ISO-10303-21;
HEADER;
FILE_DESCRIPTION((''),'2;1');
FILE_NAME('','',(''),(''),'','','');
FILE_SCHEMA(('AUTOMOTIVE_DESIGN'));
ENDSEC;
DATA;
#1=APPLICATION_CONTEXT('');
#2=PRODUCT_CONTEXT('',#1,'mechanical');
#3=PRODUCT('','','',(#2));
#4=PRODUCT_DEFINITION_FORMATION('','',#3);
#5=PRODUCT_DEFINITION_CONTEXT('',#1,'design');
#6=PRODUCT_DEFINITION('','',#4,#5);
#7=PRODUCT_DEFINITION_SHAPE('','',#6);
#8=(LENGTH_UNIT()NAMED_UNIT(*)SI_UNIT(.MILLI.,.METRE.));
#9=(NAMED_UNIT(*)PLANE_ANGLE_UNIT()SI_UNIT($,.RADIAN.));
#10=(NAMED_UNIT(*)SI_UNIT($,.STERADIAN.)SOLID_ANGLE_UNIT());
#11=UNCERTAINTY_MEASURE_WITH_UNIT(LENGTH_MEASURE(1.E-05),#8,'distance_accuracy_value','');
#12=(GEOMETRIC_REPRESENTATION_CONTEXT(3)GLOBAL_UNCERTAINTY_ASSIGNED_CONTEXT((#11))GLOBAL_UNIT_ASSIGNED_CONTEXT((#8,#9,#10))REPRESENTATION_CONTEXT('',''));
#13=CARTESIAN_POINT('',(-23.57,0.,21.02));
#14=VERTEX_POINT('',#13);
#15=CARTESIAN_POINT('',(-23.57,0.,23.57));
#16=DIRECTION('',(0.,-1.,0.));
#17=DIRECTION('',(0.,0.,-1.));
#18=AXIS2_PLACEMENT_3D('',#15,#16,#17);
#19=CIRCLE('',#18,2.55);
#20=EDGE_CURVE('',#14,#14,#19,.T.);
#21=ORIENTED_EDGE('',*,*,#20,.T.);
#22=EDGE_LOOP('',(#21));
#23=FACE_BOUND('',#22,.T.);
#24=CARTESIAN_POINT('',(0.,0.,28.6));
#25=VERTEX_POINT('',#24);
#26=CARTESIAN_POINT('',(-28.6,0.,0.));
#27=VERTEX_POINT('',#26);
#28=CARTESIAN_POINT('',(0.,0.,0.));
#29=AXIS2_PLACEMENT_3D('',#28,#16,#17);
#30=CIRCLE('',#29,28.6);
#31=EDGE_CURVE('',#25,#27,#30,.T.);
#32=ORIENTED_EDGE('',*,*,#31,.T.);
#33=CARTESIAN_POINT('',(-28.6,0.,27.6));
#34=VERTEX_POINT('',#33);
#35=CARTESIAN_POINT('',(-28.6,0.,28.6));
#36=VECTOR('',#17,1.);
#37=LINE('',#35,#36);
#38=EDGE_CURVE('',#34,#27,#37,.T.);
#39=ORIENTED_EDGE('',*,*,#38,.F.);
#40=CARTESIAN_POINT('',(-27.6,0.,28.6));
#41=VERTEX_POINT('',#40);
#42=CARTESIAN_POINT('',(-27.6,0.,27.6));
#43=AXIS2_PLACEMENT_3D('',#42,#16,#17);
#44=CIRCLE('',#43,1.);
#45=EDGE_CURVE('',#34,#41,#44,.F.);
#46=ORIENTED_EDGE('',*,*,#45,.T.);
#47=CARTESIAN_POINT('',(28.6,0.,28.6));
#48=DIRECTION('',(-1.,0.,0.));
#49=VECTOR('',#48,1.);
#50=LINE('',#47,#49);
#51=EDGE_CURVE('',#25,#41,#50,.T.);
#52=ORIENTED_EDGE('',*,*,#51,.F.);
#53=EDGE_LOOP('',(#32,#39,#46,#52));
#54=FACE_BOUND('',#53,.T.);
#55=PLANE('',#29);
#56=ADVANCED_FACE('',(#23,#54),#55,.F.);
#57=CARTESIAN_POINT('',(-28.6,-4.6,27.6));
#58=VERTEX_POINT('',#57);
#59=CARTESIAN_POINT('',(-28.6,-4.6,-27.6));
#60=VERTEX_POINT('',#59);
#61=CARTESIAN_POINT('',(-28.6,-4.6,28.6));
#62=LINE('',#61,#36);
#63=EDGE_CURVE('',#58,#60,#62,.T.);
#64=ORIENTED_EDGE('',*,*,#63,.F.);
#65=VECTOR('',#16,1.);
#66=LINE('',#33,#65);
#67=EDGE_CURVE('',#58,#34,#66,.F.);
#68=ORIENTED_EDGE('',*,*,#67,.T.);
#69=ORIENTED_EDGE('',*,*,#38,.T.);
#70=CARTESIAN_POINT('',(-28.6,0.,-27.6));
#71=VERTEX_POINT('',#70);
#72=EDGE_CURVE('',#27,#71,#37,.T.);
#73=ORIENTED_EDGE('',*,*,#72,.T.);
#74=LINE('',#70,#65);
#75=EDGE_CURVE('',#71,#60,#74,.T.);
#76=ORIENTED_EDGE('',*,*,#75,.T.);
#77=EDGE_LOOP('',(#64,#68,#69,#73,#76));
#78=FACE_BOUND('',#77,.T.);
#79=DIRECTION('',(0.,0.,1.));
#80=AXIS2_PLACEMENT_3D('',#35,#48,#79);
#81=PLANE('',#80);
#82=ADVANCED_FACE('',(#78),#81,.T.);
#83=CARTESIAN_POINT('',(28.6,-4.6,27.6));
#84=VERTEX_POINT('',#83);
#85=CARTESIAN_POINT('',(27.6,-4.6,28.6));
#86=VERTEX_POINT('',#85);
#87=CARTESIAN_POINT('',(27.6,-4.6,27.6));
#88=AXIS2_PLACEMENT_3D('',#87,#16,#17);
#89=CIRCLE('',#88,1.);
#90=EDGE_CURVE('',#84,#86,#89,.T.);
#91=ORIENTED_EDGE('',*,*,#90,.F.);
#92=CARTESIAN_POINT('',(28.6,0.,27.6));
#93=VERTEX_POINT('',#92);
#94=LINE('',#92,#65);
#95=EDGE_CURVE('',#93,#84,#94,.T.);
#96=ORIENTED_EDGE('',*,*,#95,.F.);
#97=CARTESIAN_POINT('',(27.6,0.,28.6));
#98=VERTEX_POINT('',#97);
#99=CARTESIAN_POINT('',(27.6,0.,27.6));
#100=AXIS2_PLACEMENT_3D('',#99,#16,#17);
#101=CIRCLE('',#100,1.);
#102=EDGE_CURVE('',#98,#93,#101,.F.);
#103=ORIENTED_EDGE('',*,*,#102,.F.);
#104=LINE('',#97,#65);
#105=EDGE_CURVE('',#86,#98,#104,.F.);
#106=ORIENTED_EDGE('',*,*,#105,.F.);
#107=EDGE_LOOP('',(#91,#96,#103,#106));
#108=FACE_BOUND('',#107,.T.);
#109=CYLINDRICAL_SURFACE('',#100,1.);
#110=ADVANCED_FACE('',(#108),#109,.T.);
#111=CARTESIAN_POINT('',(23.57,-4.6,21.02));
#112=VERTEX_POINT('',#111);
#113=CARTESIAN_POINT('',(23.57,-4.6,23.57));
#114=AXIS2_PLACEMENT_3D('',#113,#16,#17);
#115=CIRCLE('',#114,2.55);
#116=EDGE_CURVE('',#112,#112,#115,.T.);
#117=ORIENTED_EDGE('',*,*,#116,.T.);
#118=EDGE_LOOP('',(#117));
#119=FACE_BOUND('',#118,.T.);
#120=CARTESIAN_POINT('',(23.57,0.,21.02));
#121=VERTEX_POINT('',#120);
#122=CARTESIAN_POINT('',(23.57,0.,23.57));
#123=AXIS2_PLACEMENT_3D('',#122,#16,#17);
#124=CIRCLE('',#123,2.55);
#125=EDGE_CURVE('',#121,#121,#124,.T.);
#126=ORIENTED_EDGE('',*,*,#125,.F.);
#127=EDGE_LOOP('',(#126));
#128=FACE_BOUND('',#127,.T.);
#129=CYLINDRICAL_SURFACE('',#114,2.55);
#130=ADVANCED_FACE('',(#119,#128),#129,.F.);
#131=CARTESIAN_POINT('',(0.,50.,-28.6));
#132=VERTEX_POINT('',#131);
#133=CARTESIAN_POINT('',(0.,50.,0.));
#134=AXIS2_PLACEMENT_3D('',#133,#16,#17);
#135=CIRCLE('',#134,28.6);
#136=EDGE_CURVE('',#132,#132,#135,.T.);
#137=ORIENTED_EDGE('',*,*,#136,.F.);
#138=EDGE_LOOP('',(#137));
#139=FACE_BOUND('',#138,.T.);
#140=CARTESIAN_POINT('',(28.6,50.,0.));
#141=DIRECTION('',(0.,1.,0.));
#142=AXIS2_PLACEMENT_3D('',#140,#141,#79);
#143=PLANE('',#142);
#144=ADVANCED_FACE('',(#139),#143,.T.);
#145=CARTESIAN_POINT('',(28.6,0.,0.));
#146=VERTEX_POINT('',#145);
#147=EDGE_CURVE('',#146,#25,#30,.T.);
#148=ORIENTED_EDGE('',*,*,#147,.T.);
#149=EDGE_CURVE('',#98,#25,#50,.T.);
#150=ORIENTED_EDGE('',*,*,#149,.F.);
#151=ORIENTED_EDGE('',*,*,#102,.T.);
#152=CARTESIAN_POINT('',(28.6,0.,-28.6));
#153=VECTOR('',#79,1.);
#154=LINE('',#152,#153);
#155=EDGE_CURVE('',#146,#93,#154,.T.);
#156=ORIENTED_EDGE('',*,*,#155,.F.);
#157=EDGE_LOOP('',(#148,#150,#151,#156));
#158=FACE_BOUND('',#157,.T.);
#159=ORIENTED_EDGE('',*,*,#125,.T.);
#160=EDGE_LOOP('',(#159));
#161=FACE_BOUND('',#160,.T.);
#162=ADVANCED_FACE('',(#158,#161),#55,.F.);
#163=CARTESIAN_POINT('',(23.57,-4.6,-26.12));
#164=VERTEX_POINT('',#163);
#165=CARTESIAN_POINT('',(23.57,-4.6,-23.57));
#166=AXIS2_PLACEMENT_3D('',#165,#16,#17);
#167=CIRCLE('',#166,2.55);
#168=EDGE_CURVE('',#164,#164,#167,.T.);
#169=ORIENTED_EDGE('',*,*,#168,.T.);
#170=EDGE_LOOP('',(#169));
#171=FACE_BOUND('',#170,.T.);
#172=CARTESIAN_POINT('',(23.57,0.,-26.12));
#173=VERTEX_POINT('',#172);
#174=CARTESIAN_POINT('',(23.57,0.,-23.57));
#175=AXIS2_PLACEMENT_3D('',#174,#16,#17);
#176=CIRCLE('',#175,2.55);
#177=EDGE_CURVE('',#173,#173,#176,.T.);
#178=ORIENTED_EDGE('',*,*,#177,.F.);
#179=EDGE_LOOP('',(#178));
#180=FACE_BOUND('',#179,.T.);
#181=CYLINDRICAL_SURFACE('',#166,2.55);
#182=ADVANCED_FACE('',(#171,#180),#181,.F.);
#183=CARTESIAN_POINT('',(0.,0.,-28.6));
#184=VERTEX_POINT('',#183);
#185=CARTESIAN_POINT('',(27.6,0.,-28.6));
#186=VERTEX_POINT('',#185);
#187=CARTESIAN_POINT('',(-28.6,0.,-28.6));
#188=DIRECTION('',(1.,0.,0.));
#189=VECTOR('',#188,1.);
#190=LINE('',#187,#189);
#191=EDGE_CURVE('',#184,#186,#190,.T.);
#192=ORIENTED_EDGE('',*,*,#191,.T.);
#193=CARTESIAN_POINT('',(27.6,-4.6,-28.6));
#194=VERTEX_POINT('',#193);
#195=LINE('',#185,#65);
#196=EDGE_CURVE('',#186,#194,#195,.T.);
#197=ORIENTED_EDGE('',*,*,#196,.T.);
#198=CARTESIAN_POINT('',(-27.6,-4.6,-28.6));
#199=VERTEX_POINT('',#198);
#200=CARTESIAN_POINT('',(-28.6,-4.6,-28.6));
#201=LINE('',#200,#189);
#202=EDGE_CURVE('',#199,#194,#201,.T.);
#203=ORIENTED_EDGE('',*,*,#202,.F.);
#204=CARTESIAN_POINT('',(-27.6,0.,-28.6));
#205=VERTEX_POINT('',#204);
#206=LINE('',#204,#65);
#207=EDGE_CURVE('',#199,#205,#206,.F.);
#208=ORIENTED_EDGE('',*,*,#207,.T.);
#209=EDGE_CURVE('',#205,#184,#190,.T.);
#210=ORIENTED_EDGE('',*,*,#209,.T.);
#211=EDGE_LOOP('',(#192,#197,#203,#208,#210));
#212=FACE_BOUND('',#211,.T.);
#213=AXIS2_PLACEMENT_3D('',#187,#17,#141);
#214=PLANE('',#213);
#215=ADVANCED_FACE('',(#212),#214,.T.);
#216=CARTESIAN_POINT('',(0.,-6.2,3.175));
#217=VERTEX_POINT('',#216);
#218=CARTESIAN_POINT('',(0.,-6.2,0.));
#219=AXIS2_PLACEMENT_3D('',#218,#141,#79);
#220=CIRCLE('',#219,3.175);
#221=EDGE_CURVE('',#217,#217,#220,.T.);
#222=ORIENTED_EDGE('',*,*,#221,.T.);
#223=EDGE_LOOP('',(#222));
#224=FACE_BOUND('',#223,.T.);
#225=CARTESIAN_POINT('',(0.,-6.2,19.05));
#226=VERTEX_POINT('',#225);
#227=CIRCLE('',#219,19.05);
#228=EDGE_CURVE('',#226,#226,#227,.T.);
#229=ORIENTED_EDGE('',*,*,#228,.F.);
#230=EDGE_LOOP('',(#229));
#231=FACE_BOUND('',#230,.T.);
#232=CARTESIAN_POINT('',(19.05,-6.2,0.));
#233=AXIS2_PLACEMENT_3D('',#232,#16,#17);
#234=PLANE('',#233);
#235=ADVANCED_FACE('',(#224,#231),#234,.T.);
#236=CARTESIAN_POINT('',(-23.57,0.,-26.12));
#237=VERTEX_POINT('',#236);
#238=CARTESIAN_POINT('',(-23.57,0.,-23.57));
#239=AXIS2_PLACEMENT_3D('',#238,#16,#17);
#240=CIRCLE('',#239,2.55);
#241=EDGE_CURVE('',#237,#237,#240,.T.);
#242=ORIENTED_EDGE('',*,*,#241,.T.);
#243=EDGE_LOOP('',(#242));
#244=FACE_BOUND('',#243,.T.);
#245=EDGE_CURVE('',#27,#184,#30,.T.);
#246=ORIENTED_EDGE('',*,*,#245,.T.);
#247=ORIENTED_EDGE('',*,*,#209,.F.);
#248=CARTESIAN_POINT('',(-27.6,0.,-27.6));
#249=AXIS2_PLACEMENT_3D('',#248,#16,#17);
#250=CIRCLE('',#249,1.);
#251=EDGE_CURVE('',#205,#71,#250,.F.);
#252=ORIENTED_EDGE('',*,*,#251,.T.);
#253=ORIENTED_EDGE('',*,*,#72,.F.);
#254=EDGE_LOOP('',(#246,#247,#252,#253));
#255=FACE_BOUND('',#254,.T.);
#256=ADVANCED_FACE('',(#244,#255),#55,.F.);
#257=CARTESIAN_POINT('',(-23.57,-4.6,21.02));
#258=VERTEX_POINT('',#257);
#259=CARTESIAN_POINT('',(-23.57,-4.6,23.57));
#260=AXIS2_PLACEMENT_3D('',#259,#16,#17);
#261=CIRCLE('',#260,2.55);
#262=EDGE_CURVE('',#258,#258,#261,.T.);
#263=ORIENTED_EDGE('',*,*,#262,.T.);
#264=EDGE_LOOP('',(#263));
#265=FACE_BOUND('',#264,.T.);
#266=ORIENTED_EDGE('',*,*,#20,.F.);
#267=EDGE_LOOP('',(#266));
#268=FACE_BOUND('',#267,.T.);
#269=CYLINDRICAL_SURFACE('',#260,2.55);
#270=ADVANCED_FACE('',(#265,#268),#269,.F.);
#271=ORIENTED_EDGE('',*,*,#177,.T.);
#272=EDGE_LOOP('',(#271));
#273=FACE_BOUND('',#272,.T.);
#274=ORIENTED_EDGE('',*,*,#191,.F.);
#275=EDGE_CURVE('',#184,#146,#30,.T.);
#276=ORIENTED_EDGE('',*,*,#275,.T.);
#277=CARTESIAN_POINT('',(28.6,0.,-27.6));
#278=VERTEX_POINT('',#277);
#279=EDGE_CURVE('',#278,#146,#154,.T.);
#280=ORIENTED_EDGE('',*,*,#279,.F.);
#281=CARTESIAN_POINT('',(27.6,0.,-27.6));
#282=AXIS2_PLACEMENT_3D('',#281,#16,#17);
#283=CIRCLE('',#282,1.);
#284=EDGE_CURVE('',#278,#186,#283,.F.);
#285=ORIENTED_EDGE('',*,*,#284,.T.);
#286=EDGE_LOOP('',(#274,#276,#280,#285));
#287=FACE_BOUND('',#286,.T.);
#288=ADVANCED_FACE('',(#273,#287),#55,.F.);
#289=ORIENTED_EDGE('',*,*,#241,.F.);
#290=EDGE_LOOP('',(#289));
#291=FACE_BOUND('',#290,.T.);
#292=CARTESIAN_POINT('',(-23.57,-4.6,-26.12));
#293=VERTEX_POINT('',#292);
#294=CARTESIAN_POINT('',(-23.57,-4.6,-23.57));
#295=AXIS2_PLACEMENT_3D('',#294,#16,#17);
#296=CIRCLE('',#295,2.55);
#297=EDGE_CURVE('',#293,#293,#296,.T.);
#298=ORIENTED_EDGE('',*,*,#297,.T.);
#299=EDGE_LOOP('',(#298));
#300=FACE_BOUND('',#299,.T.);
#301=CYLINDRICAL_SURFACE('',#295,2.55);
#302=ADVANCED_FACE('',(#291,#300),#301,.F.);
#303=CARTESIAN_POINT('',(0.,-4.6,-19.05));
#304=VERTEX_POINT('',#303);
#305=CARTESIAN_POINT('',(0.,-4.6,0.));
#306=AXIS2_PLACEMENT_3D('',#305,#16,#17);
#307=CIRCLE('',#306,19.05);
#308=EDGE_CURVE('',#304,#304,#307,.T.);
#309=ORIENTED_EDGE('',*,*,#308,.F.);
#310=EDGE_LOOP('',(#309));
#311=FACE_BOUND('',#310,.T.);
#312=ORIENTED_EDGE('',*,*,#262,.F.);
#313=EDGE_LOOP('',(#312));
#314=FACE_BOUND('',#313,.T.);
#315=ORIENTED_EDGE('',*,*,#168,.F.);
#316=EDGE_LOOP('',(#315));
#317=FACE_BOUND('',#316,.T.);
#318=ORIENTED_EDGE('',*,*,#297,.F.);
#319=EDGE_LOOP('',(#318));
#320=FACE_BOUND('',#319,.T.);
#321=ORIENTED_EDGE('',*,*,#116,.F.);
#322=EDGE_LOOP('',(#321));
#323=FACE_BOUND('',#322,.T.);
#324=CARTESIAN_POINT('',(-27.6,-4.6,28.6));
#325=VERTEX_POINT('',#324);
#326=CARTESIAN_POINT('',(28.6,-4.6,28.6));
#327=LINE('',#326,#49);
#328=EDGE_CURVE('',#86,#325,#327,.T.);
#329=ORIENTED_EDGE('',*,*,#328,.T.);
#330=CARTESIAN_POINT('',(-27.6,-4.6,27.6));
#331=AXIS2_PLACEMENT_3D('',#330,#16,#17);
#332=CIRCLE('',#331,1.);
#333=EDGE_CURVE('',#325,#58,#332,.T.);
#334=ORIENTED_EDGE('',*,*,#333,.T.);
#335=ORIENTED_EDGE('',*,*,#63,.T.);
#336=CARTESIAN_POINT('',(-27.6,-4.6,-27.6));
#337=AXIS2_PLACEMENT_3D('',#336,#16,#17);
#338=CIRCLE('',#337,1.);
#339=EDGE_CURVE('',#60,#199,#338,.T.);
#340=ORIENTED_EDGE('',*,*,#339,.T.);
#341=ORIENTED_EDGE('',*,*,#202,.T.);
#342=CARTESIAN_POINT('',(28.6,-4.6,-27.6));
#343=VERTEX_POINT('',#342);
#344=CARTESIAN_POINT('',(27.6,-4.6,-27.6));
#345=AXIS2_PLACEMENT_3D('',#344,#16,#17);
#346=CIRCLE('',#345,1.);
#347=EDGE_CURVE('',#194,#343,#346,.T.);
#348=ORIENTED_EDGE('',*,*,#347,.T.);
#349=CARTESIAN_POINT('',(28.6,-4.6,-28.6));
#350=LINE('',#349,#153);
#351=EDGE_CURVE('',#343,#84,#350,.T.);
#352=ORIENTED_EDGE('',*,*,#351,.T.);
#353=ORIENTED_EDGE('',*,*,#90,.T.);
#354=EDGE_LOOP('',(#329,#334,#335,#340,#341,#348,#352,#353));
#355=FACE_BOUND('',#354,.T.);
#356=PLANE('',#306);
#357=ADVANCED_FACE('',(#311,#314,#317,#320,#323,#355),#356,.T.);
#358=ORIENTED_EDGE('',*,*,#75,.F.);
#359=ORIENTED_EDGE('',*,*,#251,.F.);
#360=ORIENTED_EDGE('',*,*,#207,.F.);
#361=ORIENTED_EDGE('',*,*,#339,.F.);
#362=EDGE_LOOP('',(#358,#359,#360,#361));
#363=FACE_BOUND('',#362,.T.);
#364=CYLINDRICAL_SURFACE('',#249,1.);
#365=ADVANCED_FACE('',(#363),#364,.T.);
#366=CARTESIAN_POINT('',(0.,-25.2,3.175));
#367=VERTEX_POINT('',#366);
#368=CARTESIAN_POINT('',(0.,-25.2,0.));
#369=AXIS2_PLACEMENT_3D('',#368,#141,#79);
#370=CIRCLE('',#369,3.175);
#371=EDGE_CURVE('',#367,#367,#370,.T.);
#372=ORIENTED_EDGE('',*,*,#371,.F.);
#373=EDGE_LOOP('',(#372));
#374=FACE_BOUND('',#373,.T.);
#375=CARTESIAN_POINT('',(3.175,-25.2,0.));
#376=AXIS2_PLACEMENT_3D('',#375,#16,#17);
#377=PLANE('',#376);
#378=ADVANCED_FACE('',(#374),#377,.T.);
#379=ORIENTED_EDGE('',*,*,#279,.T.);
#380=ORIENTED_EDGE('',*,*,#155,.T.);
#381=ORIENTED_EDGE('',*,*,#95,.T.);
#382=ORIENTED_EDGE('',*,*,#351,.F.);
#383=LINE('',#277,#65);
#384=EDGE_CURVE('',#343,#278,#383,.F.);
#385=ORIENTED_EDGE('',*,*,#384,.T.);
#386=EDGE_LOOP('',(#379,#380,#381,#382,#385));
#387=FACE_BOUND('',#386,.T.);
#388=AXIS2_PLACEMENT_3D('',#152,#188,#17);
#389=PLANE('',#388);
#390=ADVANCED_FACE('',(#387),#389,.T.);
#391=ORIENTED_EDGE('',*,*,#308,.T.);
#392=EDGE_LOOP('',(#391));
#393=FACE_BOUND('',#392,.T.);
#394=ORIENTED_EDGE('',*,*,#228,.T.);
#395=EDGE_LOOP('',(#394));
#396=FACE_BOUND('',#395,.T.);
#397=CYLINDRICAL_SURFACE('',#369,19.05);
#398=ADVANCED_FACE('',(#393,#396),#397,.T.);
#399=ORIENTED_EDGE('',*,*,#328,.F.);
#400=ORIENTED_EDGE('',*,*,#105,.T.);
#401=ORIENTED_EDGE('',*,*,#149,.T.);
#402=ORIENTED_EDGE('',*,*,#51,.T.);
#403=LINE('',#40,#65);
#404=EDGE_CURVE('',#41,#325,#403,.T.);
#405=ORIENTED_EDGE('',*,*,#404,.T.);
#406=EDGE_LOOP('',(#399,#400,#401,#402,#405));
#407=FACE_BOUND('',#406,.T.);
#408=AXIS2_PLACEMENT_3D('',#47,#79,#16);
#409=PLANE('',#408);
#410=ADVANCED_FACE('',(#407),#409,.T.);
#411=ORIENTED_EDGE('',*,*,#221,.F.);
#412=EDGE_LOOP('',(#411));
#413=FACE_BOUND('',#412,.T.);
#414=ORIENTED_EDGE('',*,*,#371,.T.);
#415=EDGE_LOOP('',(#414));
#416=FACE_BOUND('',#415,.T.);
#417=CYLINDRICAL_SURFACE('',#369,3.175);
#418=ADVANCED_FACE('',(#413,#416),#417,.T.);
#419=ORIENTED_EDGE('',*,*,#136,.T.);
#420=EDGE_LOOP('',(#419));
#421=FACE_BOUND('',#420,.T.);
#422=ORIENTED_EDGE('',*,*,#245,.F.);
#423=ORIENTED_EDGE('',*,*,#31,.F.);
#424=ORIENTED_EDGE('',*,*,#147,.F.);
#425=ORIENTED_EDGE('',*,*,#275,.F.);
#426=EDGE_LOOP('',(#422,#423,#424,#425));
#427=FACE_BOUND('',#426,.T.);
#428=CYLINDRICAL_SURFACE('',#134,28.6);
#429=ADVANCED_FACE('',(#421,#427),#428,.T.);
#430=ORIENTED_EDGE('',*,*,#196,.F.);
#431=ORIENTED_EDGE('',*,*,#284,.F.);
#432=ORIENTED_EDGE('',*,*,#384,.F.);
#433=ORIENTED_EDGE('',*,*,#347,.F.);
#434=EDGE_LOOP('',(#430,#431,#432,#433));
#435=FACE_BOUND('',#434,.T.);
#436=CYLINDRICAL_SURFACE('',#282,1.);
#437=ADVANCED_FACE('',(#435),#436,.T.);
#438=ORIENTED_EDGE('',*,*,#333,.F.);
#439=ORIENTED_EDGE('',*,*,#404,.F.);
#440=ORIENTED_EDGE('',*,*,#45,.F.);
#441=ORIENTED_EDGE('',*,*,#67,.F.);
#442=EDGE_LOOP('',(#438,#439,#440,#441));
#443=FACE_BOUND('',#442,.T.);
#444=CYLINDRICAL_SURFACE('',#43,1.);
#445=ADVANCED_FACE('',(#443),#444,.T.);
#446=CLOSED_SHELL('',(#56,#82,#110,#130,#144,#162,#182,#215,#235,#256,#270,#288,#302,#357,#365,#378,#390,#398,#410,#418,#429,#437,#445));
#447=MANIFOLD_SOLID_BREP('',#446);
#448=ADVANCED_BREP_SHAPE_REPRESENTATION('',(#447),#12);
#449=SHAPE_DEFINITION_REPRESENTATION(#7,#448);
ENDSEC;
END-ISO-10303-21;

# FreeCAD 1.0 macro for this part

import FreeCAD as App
import Part
import Sketcher


def edges_at(feature, points):
    """Names of the edges that pass closest to the given points."""
    edges = feature.Shape.Edges
    near = lambda p: min(range(len(edges)), key=lambda i: edges[i].distToShape(Part.Vertex(*p))[0])
    return sorted({f"Edge{near(p) + 1}" for p in points})


def add_polygon(sketch, points):
    """Adds a closed chain of lines whose ends are joined by coincident constraints."""
    first, n = sketch.GeometryCount, len(points)
    for a, b in zip(points, points[1:] + points[:1]):
        sketch.addGeometry(Part.LineSegment(App.Vector(*a, 0), App.Vector(*b, 0)), False)
    for i in range(n):
        sketch.addConstraint(Sketcher.Constraint("Coincident", first + i, 2, first + (i + 1) % n, 1))

doc = App.newDocument("Part")
body = doc.addObject("PartDesign::Body", "Body")

sketch1 = body.newObject("Sketcher::SketchObject", "Sketch")
sketch1.AttachmentSupport = (doc.getObject("XZ_Plane"), [""])
sketch1.MapMode = "FlatFace"
sketch1.AttachmentOffset = App.Placement(App.Vector(0, 0, 4.6), App.Rotation())
add_polygon(sketch1, [(-29, 29), (-29, -29), (29, -29), (29, 29)])
sketch1.addConstraint(Sketcher.Constraint("Vertical", 0))
sketch1.addConstraint(Sketcher.Constraint("Horizontal", 1))
sketch1.addConstraint(Sketcher.Constraint("Vertical", 2))
sketch1.addConstraint(Sketcher.Constraint("Horizontal", 3))
sketch1.addConstraint(Sketcher.Constraint("Symmetric", 0, 2, 2, 2, -1, 1))
sketch1.addConstraint(Sketcher.Constraint("Equal", 3, 0))
sketch1.addConstraint(Sketcher.Constraint("DistanceX", 1, 1, 1, 2, 57.2))
pad1 = body.newObject("PartDesign::Pad", "Pad")
pad1.Profile = sketch1
pad1.Length = 4.6
pad1.Reversed = True

sketch2 = body.newObject("Sketcher::SketchObject", "Sketch001")
sketch2.AttachmentSupport = (doc.getObject("XY_Plane"), [""])
sketch2.MapMode = "FlatFace"
add_polygon(sketch2, [(0, 50), (0, 0), (29, 0), (29, 50)])
sketch2.addConstraint(Sketcher.Constraint("Vertical", 0))
sketch2.addConstraint(Sketcher.Constraint("Horizontal", 1))
sketch2.addConstraint(Sketcher.Constraint("Vertical", 2))
sketch2.addConstraint(Sketcher.Constraint("Horizontal", 3))
sketch2.addConstraint(Sketcher.Constraint("Coincident", 0, 2, -1, 1))
sketch2.addConstraint(Sketcher.Constraint("DistanceY", 0, 2, 0, 1, 50.0))
sketch2.addConstraint(Sketcher.Constraint("DistanceX", 1, 1, 1, 2, 28.6))
revolution = body.newObject("PartDesign::Revolution", "Revolution")
revolution.Profile = sketch2
revolution.ReferenceAxis = (sketch2, ["V_Axis"])
revolution.Angle = 360

sketch3 = body.newObject("Sketcher::SketchObject", "Sketch002")
sketch3.AttachmentSupport = (doc.getObject("XY_Plane"), [""])
sketch3.MapMode = "FlatFace"
add_polygon(sketch3, [(3.2, -25.2), (0, -25.2), (0, -4.6), (19.1, -4.6), (19.1, -6.2), (3.2, -6.2)])
sketch3.addConstraint(Sketcher.Constraint("Horizontal", 0))
sketch3.addConstraint(Sketcher.Constraint("Vertical", 1))
sketch3.addConstraint(Sketcher.Constraint("Horizontal", 2))
sketch3.addConstraint(Sketcher.Constraint("Vertical", 3))
sketch3.addConstraint(Sketcher.Constraint("Horizontal", 4))
sketch3.addConstraint(Sketcher.Constraint("Vertical", 5))
sketch3.addConstraint(Sketcher.Constraint("PointOnObject", 0, 2, -2))
sketch3.addConstraint(Sketcher.Constraint("DistanceY", 5, 2, 5, 1, 19.0))
sketch3.addConstraint(Sketcher.Constraint("DistanceY", 1, 1, 1, 2, 20.6))
sketch3.addConstraint(Sketcher.Constraint("DistanceX", 2, 1, 2, 2, 19.05))
sketch3.addConstraint(Sketcher.Constraint("DistanceY", 0, 2, -1, 1, 25.2))
sketch3.addConstraint(Sketcher.Constraint("DistanceX", 0, 2, 0, 1, 3.175))
revolution2 = body.newObject("PartDesign::Revolution", "Revolution001")
revolution2.Profile = sketch3
revolution2.ReferenceAxis = (sketch3, ["V_Axis"])
revolution2.Angle = 360

sketch4 = body.newObject("Sketcher::SketchObject", "Sketch003")
sketch4.AttachmentSupport = (doc.getObject("XZ_Plane"), [""])
sketch4.MapMode = "FlatFace"
sketch4.AttachmentOffset = App.Placement(App.Vector(0, 0, 4.6), App.Rotation())
sketch4.addGeometry(Part.Circle(App.Vector(-23.6, -23.6, 0), App.Vector(0, 0, 1), 2.5), False)
sketch4.addGeometry(Part.Circle(App.Vector(-23.6, 23.6, 0), App.Vector(0, 0, 1), 2.5), False)
sketch4.addGeometry(Part.Circle(App.Vector(23.6, 23.6, 0), App.Vector(0, 0, 1), 2.5), False)
sketch4.addGeometry(Part.Circle(App.Vector(23.6, -23.6, 0), App.Vector(0, 0, 1), 2.5), False)
sketch4.addConstraint(Sketcher.Constraint("Equal", 0, 1))
sketch4.addConstraint(Sketcher.Constraint("Equal", 1, 2))
sketch4.addConstraint(Sketcher.Constraint("Equal", 2, 3))
sketch4.addConstraint(Sketcher.Constraint("Symmetric", 0, 3, 2, 3, -1, 1))
sketch4.addConstraint(Sketcher.Constraint("Symmetric", 1, 3, 3, 3, -1, 1))
sketch4.addConstraint(Sketcher.Constraint("Symmetric", 1, 3, 2, 3, -2))
sketch4.addConstraint(Sketcher.Constraint("Diameter", 0, 5.1))
sketch4.addConstraint(Sketcher.Constraint("DistanceX", 0, 3, -1, 1, 23.57))
sketch4.addConstraint(Sketcher.Constraint("DistanceY", 0, 3, -1, 1, 23.57))
doc.recompute()
hole = body.newObject("PartDesign::Hole", "Hole")
hole.Profile = sketch4
hole.ThreadType = "None"
hole.Diameter = 5.1
hole.DepthType = "Dimension"
hole.Depth = 54.6
hole.DrillPoint = "Flat"
doc.recompute()

fillet = body.newObject("PartDesign::Fillet", "Fillet")
fillet.Base = (hole, edges_at(hole, [
    (28.6, -2.3, 28.6),
    (28.6, -2.3, -28.6),
    (-28.6, -2.3, -28.6),
    (-28.6, -2.3, 28.6),
]))
fillet.Radius = 1

doc.recompute()
